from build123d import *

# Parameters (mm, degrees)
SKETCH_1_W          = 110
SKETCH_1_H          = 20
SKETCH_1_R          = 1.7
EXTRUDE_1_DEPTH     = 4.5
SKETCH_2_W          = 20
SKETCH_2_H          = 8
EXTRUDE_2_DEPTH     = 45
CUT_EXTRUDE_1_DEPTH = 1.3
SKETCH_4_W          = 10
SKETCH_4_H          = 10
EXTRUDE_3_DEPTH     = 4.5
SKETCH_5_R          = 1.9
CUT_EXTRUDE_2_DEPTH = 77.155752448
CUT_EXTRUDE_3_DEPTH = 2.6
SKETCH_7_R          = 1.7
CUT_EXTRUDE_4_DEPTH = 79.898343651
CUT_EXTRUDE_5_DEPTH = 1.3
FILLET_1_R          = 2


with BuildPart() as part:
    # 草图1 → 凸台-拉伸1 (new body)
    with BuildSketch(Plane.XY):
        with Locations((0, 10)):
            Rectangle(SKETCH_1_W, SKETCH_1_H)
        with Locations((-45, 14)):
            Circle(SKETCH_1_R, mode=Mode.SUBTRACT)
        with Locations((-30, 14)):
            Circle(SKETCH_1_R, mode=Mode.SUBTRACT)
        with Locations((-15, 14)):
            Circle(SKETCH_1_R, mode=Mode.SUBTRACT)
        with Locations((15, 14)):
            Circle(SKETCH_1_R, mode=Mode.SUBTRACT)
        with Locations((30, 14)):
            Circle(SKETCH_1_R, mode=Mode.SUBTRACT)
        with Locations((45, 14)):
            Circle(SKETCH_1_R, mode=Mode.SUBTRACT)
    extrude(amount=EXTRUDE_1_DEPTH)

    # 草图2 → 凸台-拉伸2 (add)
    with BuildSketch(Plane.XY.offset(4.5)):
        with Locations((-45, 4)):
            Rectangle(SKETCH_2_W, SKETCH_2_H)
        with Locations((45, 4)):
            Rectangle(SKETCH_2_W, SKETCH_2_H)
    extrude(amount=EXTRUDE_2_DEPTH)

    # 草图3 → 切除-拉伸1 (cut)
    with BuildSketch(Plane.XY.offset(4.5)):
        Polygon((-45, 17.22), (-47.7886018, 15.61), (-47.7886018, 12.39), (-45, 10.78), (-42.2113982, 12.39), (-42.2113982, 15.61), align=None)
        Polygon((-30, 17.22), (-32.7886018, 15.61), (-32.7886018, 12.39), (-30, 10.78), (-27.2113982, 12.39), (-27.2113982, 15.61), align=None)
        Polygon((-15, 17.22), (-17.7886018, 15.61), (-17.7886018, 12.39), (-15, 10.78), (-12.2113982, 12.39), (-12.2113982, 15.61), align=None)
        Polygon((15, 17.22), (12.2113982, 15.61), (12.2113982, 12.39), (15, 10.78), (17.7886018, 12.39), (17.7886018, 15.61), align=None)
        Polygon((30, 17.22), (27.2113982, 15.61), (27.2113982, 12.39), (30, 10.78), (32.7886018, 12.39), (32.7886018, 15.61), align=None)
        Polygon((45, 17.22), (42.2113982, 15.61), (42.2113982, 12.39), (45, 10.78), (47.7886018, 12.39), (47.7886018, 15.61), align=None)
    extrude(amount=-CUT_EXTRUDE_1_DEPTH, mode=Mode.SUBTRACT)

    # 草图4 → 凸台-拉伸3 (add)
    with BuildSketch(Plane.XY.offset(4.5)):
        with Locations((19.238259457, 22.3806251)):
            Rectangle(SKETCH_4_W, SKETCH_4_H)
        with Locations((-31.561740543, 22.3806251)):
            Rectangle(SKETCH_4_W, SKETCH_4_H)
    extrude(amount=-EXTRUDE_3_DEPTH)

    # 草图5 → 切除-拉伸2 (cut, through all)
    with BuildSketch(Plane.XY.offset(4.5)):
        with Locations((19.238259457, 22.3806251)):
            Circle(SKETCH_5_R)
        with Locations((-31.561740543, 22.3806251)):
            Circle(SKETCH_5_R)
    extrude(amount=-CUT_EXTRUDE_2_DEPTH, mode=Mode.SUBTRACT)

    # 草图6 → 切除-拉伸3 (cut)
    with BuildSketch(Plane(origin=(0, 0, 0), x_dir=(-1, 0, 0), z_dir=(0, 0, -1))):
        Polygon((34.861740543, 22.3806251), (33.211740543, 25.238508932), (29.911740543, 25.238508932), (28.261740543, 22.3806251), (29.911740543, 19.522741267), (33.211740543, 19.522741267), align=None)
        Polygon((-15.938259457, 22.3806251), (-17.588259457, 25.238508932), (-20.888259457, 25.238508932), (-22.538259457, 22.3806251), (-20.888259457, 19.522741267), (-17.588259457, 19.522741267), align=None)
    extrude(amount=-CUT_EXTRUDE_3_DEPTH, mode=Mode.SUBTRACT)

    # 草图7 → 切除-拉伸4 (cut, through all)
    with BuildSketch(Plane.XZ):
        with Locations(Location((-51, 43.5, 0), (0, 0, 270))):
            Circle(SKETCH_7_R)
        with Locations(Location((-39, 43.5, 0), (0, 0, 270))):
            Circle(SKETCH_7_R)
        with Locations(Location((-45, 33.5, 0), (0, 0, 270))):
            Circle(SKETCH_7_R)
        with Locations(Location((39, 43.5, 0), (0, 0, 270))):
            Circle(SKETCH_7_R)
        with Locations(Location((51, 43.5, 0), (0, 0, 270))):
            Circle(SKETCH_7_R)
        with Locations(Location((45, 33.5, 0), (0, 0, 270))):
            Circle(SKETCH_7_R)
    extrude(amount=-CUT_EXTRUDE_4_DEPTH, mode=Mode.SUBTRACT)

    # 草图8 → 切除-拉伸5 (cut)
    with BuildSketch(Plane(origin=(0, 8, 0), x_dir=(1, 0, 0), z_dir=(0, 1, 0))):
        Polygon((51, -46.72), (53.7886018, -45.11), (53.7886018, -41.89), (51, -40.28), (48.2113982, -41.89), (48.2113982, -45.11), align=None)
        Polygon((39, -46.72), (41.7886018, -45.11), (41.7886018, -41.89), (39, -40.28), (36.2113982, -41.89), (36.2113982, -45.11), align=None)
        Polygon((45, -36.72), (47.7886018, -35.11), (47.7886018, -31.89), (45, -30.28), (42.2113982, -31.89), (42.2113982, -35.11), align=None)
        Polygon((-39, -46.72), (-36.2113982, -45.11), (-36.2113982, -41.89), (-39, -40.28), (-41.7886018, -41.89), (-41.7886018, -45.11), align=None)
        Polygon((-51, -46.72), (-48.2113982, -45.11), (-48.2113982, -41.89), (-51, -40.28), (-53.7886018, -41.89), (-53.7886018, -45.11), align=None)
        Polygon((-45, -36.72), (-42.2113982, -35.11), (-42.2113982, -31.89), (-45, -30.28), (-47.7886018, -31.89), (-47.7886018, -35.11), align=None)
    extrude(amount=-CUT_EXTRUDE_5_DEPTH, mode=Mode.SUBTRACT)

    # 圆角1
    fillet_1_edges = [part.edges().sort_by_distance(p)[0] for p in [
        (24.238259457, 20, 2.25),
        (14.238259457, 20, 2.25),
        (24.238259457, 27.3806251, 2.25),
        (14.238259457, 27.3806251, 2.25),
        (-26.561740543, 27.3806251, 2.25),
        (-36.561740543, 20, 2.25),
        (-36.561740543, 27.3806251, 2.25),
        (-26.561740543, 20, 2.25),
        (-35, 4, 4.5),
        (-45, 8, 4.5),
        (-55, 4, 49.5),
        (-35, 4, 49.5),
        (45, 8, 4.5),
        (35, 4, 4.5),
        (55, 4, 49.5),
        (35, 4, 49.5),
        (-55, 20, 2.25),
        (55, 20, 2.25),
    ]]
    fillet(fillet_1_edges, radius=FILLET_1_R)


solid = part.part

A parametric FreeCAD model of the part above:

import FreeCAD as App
import Part
import Sketcher
from FreeCAD import Vector
Q = App.Units.Quantity


def edges_at(feature, points):
    """Names of the edges that pass closest to the given points."""
    edges = feature.Shape.Edges
    near = lambda p: min(range(len(edges)), key=lambda i: edges[i].distToShape(Part.Vertex(*p))[0])
    return sorted({f"Edge{near(p) + 1}" for p in points})

doc = App.newDocument("Part")
body = doc.addObject("PartDesign::Body", "Body")

# Sketch on XY plane
sketch1 = doc.addObject("Sketcher::SketchObject", "Sketch")
body.addObject(sketch1)
sketch1.AttachmentSupport = (doc.XY_Plane, [""])
sketch1.MapMode = "FlatFace"
sketch1.addGeometry(Part.LineSegment(Vector(-55, 20, 0), Vector(-55, 0, 0)), False)
sketch1.addGeometry(Part.LineSegment(Vector(-55, 0, 0), Vector(55, 0, 0)), False)
sketch1.addGeometry(Part.LineSegment(Vector(55, 0, 0), Vector(55, 20, 0)), False)
sketch1.addGeometry(Part.LineSegment(Vector(55, 20, 0), Vector(-55, 20, 0)), False)
sketch1.addGeometry(Part.Circle(Vector(-45, 14, 0), Vector(0, 0, 1), 1.7), False)
sketch1.addGeometry(Part.Circle(Vector(-30, 14, 0), Vector(0, 0, 1), 1.7), False)
sketch1.addGeometry(Part.Circle(Vector(-15, 14, 0), Vector(0, 0, 1), 1.7), False)
sketch1.addGeometry(Part.Circle(Vector(15, 14, 0), Vector(0, 0, 1), 1.7), False)
sketch1.addGeometry(Part.Circle(Vector(30, 14, 0), Vector(0, 0, 1), 1.7), False)
sketch1.addGeometry(Part.Circle(Vector(45, 14, 0), Vector(0, 0, 1), 1.7), False)
sketch1.addConstraint(Sketcher.Constraint("Coincident", 0, 2, 1, 1))
sketch1.addConstraint(Sketcher.Constraint("Coincident", 1, 2, 2, 1))
sketch1.addConstraint(Sketcher.Constraint("Coincident", 2, 2, 3, 1))
sketch1.addConstraint(Sketcher.Constraint("Coincident", 3, 2, 0, 1))
sketch1.addConstraint(Sketcher.Constraint("Vertical", 0))
sketch1.addConstraint(Sketcher.Constraint("Horizontal", 1))
sketch1.addConstraint(Sketcher.Constraint("Vertical", 2))
sketch1.addConstraint(Sketcher.Constraint("Horizontal", 3))
sketch1.addConstraint(Sketcher.Constraint("Equal", 4, 5))
sketch1.addConstraint(Sketcher.Constraint("Equal", 5, 6))
sketch1.addConstraint(Sketcher.Constraint("Equal", 6, 7))
sketch1.addConstraint(Sketcher.Constraint("Equal", 7, 8))
sketch1.addConstraint(Sketcher.Constraint("Equal", 8, 9))
sketch1.addConstraint(Sketcher.Constraint("Symmetric", 0, 2, 1, 2, -1, 1))
sketch1.addConstraint(Sketcher.Constraint("Symmetric", 6, 3, 7, 3, -2))
sketch1.addConstraint(Sketcher.Constraint("Symmetric", 5, 3, 8, 3, -2))
sketch1.addConstraint(Sketcher.Constraint("Symmetric", 4, 3, 9, 3, -2))
sketch1.addConstraint(Sketcher.Constraint("Horizontal", 4, 3, 5, 3))
sketch1.addConstraint(Sketcher.Constraint("Horizontal", 5, 3, 6, 3))
sketch1.addConstraint(Sketcher.Constraint("Diameter", 4, Q("3.4 mm")))
sketch1.addConstraint(Sketcher.Constraint("DistanceX", 1, 1, 1, 2, Q("110 mm")))
sketch1.addConstraint(Sketcher.Constraint("DistanceY", 0, 2, 0, 1, Q("20 mm")))
sketch1.addConstraint(Sketcher.Constraint("DistanceX", 4, 3, -1, 1, Q("45 mm")))
sketch1.addConstraint(Sketcher.Constraint("DistanceY", -1, 1, 4, 3, Q("14 mm")))
sketch1.addConstraint(Sketcher.Constraint("DistanceX", 5, 3, -1, 1, Q("30 mm")))
sketch1.addConstraint(Sketcher.Constraint("DistanceX", 6, 3, -1, 1, Q("15 mm")))
pad1 = doc.addObject("PartDesign::Pad", "Pad")
body.addObject(pad1)
pad1.Profile = sketch1
pad1.Length = 4.5

# Sketch on XY plane
sketch2 = doc.addObject("Sketcher::SketchObject", "Sketch001")
body.addObject(sketch2)
sketch2.AttachmentSupport = (doc.XY_Plane, [""])
sketch2.MapMode = "FlatFace"
sketch2.AttachmentOffset = App.Placement(Vector(0, 0, 4.5), App.Rotation())
sketch2.addGeometry(Part.LineSegment(Vector(-55, 8, 0), Vector(-55, 0, 0)), False)
sketch2.addGeometry(Part.LineSegment(Vector(-55, 0, 0), Vector(-35, 0, 0)), False)
sketch2.addGeometry(Part.LineSegment(Vector(-35, 0, 0), Vector(-35, 8, 0)), False)
sketch2.addGeometry(Part.LineSegment(Vector(-35, 8, 0), Vector(-55, 8, 0)), False)
sketch2.addGeometry(Part.LineSegment(Vector(35, 8, 0), Vector(35, 0, 0)), False)
sketch2.addGeometry(Part.LineSegment(Vector(35, 0, 0), Vector(55, 0, 0)), False)
sketch2.addGeometry(Part.LineSegment(Vector(55, 0, 0), Vector(55, 8, 0)), False)
sketch2.addGeometry(Part.LineSegment(Vector(55, 8, 0), Vector(35, 8, 0)), False)
sketch2.addConstraint(Sketcher.Constraint("Coincident", 0, 2, 1, 1))
sketch2.addConstraint(Sketcher.Constraint("Coincident", 1, 2, 2, 1))
sketch2.addConstraint(Sketcher.Constraint("Coincident", 2, 2, 3, 1))
sketch2.addConstraint(Sketcher.Constraint("Coincident", 3, 2, 0, 1))
sketch2.addConstraint(Sketcher.Constraint("Coincident", 4, 2, 5, 1))
sketch2.addConstraint(Sketcher.Constraint("Coincident", 5, 2, 6, 1))
sketch2.addConstraint(Sketcher.Constraint("Coincident", 6, 2, 7, 1))
sketch2.addConstraint(Sketcher.Constraint("Coincident", 7, 2, 4, 1))
sketch2.addConstraint(Sketcher.Constraint("Vertical", 0))
sketch2.addConstraint(Sketcher.Constraint("Horizontal", 1))
sketch2.addConstraint(Sketcher.Constraint("Vertical", 2))
sketch2.addConstraint(Sketcher.Constraint("Horizontal", 3))
sketch2.addConstraint(Sketcher.Constraint("Vertical", 4))
sketch2.addConstraint(Sketcher.Constraint("Horizontal", 5))
sketch2.addConstraint(Sketcher.Constraint("Vertical", 6))
sketch2.addConstraint(Sketcher.Constraint("Horizontal", 7))
sketch2.addConstraint(Sketcher.Constraint("Symmetric", 1, 2, 4, 2, -1, 1))
sketch2.addConstraint(Sketcher.Constraint("Symmetric", 0, 2, 5, 2, -2))
sketch2.addConstraint(Sketcher.Constraint("Horizontal", 3, 2, 6, 2))
sketch2.addConstraint(Sketcher.Constraint("DistanceX", 1, 1, 1, 2, Q("20 mm")))
sketch2.addConstraint(Sketcher.Constraint("DistanceY", 0, 2, 0, 1, Q("8 mm")))
sketch2.addConstraint(Sketcher.Constraint("DistanceX", 0, 2, -1, 1, Q("55 mm")))
pad2 = doc.addObject("PartDesign::Pad", "Pad001")
body.addObject(pad2)
pad2.Profile = sketch2
pad2.Length = 45

# Sketch on XY plane
sketch3 = doc.addObject("Sketcher::SketchObject", "Sketch002")
body.addObject(sketch3)
sketch3.AttachmentSupport = (doc.XY_Plane, [""])
sketch3.MapMode = "FlatFace"
sketch3.AttachmentOffset = App.Placement(Vector(0, 0, 4.5), App.Rotation())
sketch3.addGeometry(Part.LineSegment(Vector(-45, 17.22, 0), Vector(-47.788602, 15.61, 0)), False)
sketch3.addGeometry(Part.LineSegment(Vector(-47.788602, 15.61, 0), Vector(-47.788602, 12.39, 0)), False)
sketch3.addGeometry(Part.LineSegment(Vector(-47.788602, 12.39, 0), Vector(-45, 10.78, 0)), False)
sketch3.addGeometry(Part.LineSegment(Vector(-45, 10.78, 0), Vector(-42.211398, 12.39, 0)), False)
sketch3.addGeometry(Part.LineSegment(Vector(-42.211398, 12.39, 0), Vector(-42.211398, 15.61, 0)), False)
sketch3.addGeometry(Part.LineSegment(Vector(-42.211398, 15.61, 0), Vector(-45, 17.22, 0)), False)
sketch3.addGeometry(Part.LineSegment(Vector(-30, 17.22, 0), Vector(-32.788602, 15.61, 0)), False)
sketch3.addGeometry(Part.LineSegment(Vector(-32.788602, 15.61, 0), Vector(-32.788602, 12.39, 0)), False)
sketch3.addGeometry(Part.LineSegment(Vector(-32.788602, 12.39, 0), Vector(-30, 10.78, 0)), False)
sketch3.addGeometry(Part.LineSegment(Vector(-30, 10.78, 0), Vector(-27.211398, 12.39, 0)), False)
sketch3.addGeometry(Part.LineSegment(Vector(-27.211398, 12.39, 0), Vector(-27.211398, 15.61, 0)), False)
sketch3.addGeometry(Part.LineSegment(Vector(-27.211398, 15.61, 0), Vector(-30, 17.22, 0)), False)
sketch3.addGeometry(Part.LineSegment(Vector(-15, 17.22, 0), Vector(-17.788602, 15.61, 0)), False)
sketch3.addGeometry(Part.LineSegment(Vector(-17.788602, 15.61, 0), Vector(-17.788602, 12.39, 0)), False)
sketch3.addGeometry(Part.LineSegment(Vector(-17.788602, 12.39, 0), Vector(-15, 10.78, 0)), False)
sketch3.addGeometry(Part.LineSegment(Vector(-15, 10.78, 0), Vector(-12.211398, 12.39, 0)), False)
sketch3.addGeometry(Part.LineSegment(Vector(-12.211398, 12.39, 0), Vector(-12.211398, 15.61, 0)), False)
sketch3.addGeometry(Part.LineSegment(Vector(-12.211398, 15.61, 0), Vector(-15, 17.22, 0)), False)
sketch3.addGeometry(Part.LineSegment(Vector(15, 17.22, 0), Vector(12.211398, 15.61, 0)), False)
sketch3.addGeometry(Part.LineSegment(Vector(12.211398, 15.61, 0), Vector(12.211398, 12.39, 0)), False)
sketch3.addGeometry(Part.LineSegment(Vector(12.211398, 12.39, 0), Vector(15, 10.78, 0)), False)
sketch3.addGeometry(Part.LineSegment(Vector(15, 10.78, 0), Vector(17.788602, 12.39, 0)), False)
sketch3.addGeometry(Part.LineSegment(Vector(17.788602, 12.39, 0), Vector(17.788602, 15.61, 0)), False)
sketch3.addGeometry(Part.LineSegment(Vector(17.788602, 15.61, 0), Vector(15, 17.22, 0)), False)
sketch3.addGeometry(Part.LineSegment(Vector(30, 17.22, 0), Vector(27.211398, 15.61, 0)), False)
sketch3.addGeometry(Part.LineSegment(Vector(27.211398, 15.61, 0), Vector(27.211398, 12.39, 0)), False)
sketch3.addGeometry(Part.LineSegment(Vector(27.211398, 12.39, 0), Vector(30, 10.78, 0)), False)
sketch3.addGeometry(Part.LineSegment(Vector(30, 10.78, 0), Vector(32.788602, 12.39, 0)), False)
sketch3.addGeometry(Part.LineSegment(Vector(32.788602, 12.39, 0), Vector(32.788602, 15.61, 0)), False)
sketch3.addGeometry(Part.LineSegment(Vector(32.788602, 15.61, 0), Vector(30, 17.22, 0)), False)
sketch3.addGeometry(Part.LineSegment(Vector(45, 17.22, 0), Vector(42.211398, 15.61, 0)), False)
sketch3.addGeometry(Part.LineSegment(Vector(42.211398, 15.61, 0), Vector(42.211398, 12.39, 0)), False)
sketch3.addGeometry(Part.LineSegment(Vector(42.211398, 12.39, 0), Vector(45, 10.78, 0)), False)
sketch3.addGeometry(Part.LineSegment(Vector(45, 10.78, 0), Vector(47.788602, 12.39, 0)), False)
sketch3.addGeometry(Part.LineSegment(Vector(47.788602, 12.39, 0), Vector(47.788602, 15.61, 0)), False)
sketch3.addGeometry(Part.LineSegment(Vector(47.788602, 15.61, 0), Vector(45, 17.22, 0)), False)
sketch3.addConstraint(Sketcher.Constraint("Coincident", 0, 2, 1, 1))
sketch3.addConstraint(Sketcher.Constraint("Coincident", 1, 2, 2, 1))
sketch3.addConstraint(Sketcher.Constraint("Coincident", 2, 2, 3, 1))
sketch3.addConstraint(Sketcher.Constraint("Coincident", 3, 2, 4, 1))
sketch3.addConstraint(Sketcher.Constraint("Coincident", 4, 2, 5, 1))
sketch3.addConstraint(Sketcher.Constraint("Coincident", 5, 2, 0, 1))
sketch3.addConstraint(Sketcher.Constraint("Coincident", 6, 2, 7, 1))
sketch3.addConstraint(Sketcher.Constraint("Coincident", 7, 2, 8, 1))
sketch3.addConstraint(Sketcher.Constraint("Coincident", 8, 2, 9, 1))
sketch3.addConstraint(Sketcher.Constraint("Coincident", 9, 2, 10, 1))
sketch3.addConstraint(Sketcher.Constraint("Coincident", 10, 2, 11, 1))
sketch3.addConstraint(Sketcher.Constraint("Coincident", 11, 2, 6, 1))
sketch3.addConstraint(Sketcher.Constraint("Coincident", 12, 2, 13, 1))
sketch3.addConstraint(Sketcher.Constraint("Coincident", 13, 2, 14, 1))
sketch3.addConstraint(Sketcher.Constraint("Coincident", 14, 2, 15, 1))
sketch3.addConstraint(Sketcher.Constraint("Coincident", 15, 2, 16, 1))
sketch3.addConstraint(Sketcher.Constraint("Coincident", 16, 2, 17, 1))
sketch3.addConstraint(Sketcher.Constraint("Coincident", 17, 2, 12, 1))
sketch3.addConstraint(Sketcher.Constraint("Coincident", 18, 2, 19, 1))
sketch3.addConstraint(Sketcher.Constraint("Coincident", 19, 2, 20, 1))
sketch3.addConstraint(Sketcher.Constraint("Coincident", 20, 2, 21, 1))
sketch3.addConstraint(Sketcher.Constraint("Coincident", 21, 2, 22, 1))
sketch3.addConstraint(Sketcher.Constraint("Coincident", 22, 2, 23, 1))
sketch3.addConstraint(Sketcher.Constraint("Coincident", 23, 2, 18, 1))
sketch3.addConstraint(Sketcher.Constraint("Coincident", 24, 2, 25, 1))
sketch3.addConstraint(Sketcher.Constraint("Coincident", 25, 2, 26, 1))
sketch3.addConstraint(Sketcher.Constraint("Coincident", 26, 2, 27, 1))
sketch3.addConstraint(Sketcher.Constraint("Coincident", 27, 2, 28, 1))
sketch3.addConstraint(Sketcher.Constraint("Coincident", 28, 2, 29, 1))
sketch3.addConstraint(Sketcher.Constraint("Coincident", 29, 2, 24, 1))
sketch3.addConstraint(Sketcher.Constraint("Coincident", 30, 2, 31, 1))
sketch3.addConstraint(Sketcher.Constraint("Coincident", 31, 2, 32, 1))
sketch3.addConstraint(Sketcher.Constraint("Coincident", 32, 2, 33, 1))
sketch3.addConstraint(Sketcher.Constraint("Coincident", 33, 2, 34, 1))
sketch3.addConstraint(Sketcher.Constraint("Coincident", 34, 2, 35, 1))
sketch3.addConstraint(Sketcher.Constraint("Coincident", 35, 2, 30, 1))
sketch3.addConstraint(Sketcher.Constraint("Vertical", 1))
sketch3.addConstraint(Sketcher.Constraint("Vertical", 4))
sketch3.addConstraint(Sketcher.Constraint("Vertical", 7))
sketch3.addConstraint(Sketcher.Constraint("Vertical", 10))
sketch3.addConstraint(Sketcher.Constraint("Vertical", 13))
sketch3.addConstraint(Sketcher.Constraint("Vertical", 16))
sketch3.addConstraint(Sketcher.Constraint("Vertical", 19))
sketch3.addConstraint(Sketcher.Constraint("Vertical", 22))
sketch3.addConstraint(Sketcher.Constraint("Vertical", 25))
sketch3.addConstraint(Sketcher.Constraint("Vertical", 28))
sketch3.addConstraint(Sketcher.Constraint("Vertical", 31))
sketch3.addConstraint(Sketcher.Constraint("Vertical", 34))
sketch3.addConstraint(Sketcher.Constraint("Symmetric", 16, 2, 18, 2, -2))
sketch3.addConstraint(Sketcher.Constraint("Symmetric", 14, 2, 20, 2, -2))
sketch3.addConstraint(Sketcher.Constraint("Symmetric", 13, 2, 21, 2, -2))
sketch3.addConstraint(Sketcher.Constraint("Symmetric", 17, 2, 23, 2, -2))
sketch3.addConstraint(Sketcher.Constraint("Symmetric", 10, 2, 24, 2, -2))
sketch3.addConstraint(Sketcher.Constraint("Symmetric", 8, 2, 26, 2, -2))
sketch3.addConstraint(Sketcher.Constraint("Symmetric", 7, 2, 27, 2, -2))
sketch3.addConstraint(Sketcher.Constraint("Symmetric", 11, 2, 29, 2, -2))
sketch3.addConstraint(Sketcher.Constraint("Symmetric", 4, 2, 30, 2, -2))
sketch3.addConstraint(Sketcher.Constraint("Symmetric", 2, 2, 32, 2, -2))
sketch3.addConstraint(Sketcher.Constraint("Symmetric", 1, 2, 33, 2, -2))
sketch3.addConstraint(Sketcher.Constraint("Symmetric", 5, 2, 35, 2, -2))
sketch3.addConstraint(Sketcher.Constraint("Parallel", 0, 3))
sketch3.addConstraint(Sketcher.Constraint("Parallel", 2, 5))
sketch3.addConstraint(Sketcher.Constraint("Parallel", 3, 6))
sketch3.addConstraint(Sketcher.Constraint("Parallel", 5, 8))
sketch3.addConstraint(Sketcher.Constraint("Parallel", 6, 9))
sketch3.addConstraint(Sketcher.Constraint("Parallel", 8, 11))
sketch3.addConstraint(Sketcher.Constraint("Parallel", 9, 12))
sketch3.addConstraint(Sketcher.Constraint("Parallel", 11, 14))
sketch3.addConstraint(Sketcher.Constraint("Parallel", 12, 15))
sketch3.addConstraint(Sketcher.Constraint("Parallel", 14, 17))
sketch3.addConstraint(Sketcher.Constraint("Parallel", 15, 18))
sketch3.addConstraint(Sketcher.Constraint("Parallel", 17, 20))
sketch3.addConstraint(Sketcher.Constraint("Parallel", 20, 23))
sketch3.addConstraint(Sketcher.Constraint("Parallel", 23, 26))
sketch3.addConstraint(Sketcher.Constraint("Parallel", 26, 29))
sketch3.addConstraint(Sketcher.Constraint("Parallel", 29, 32))
sketch3.addConstraint(Sketcher.Constraint("Parallel", 32, 35))
sketch3.addConstraint(Sketcher.Constraint("Horizontal", 1, 2, 3, 2))
sketch3.addConstraint(Sketcher.Constraint("Horizontal", 0, 2, 4, 2))
sketch3.addConstraint(Sketcher.Constraint("Horizontal", 4, 2, 6, 2))
sketch3.addConstraint(Sketcher.Constraint("Horizontal", 3, 2, 7, 2))
sketch3.addConstraint(Sketcher.Constraint("Horizontal", 2, 2, 8, 2))
sketch3.addConstraint(Sketcher.Constraint("Horizontal", 7, 2, 9, 2))
sketch3.addConstraint(Sketcher.Constraint("Horizontal", 6, 2, 10, 2))
sketch3.addConstraint(Sketcher.Constraint("Horizontal", 10, 2, 12, 2))
sketch3.addConstraint(Sketcher.Constraint("Horizontal", 9, 2, 13, 2))
sketch3.addConstraint(Sketcher.Constraint("Horizontal", 8, 2, 14, 2))
sketch3.addConstraint(Sketcher.Constraint("Horizontal", 13, 2, 15, 2))
sketch3.addConstraint(Sketcher.Constraint("Horizontal", 12, 2, 16, 2))
sketch3.addConstraint(Sketcher.Constraint("Angle", 0, Q("-150 deg")))
sketch3.addConstraint(Sketcher.Constraint("DistanceX", 2, 2, -1, 1, Q("45 mm")))
sketch3.addConstraint(Sketcher.Constraint("DistanceX", 8, 2, -1, 1, Q("30 mm")))
sketch3.addConstraint(Sketcher.Constraint("DistanceX", 14, 2, -1, 1, Q("15 mm")))
sketch3.addConstraint(Sketcher.Constraint("DistanceY", 1, 2, 1, 1, Q("3.22 mm")))
sketch3.addConstraint(Sketcher.Constraint("Distance", 0, Q("3.22 mm")))
sketch3.addConstraint(Sketcher.Constraint("DistanceY", -1, 1, 0, 2, Q("15.61 mm")))
pocket1 = doc.addObject("PartDesign::Pocket", "Pocket")
body.addObject(pocket1)
pocket1.Profile = sketch3
pocket1.Length = 1.3

# Sketch on XY plane
sketch4 = doc.addObject("Sketcher::SketchObject", "Sketch003")
body.addObject(sketch4)
sketch4.AttachmentSupport = (doc.XY_Plane, [""])
sketch4.MapMode = "FlatFace"
sketch4.AttachmentOffset = App.Placement(Vector(0, 0, 4.5), App.Rotation())
sketch4.addGeometry(Part.LineSegment(Vector(14, 27, 0), Vector(14, 17, 0)), False)
sketch4.addGeometry(Part.LineSegment(Vector(14, 17, 0), Vector(24, 17, 0)), False)
sketch4.addGeometry(Part.LineSegment(Vector(24, 17, 0), Vector(24, 27, 0)), False)
sketch4.addGeometry(Part.LineSegment(Vector(24, 27, 0), Vector(14, 27, 0)), False)
sketch4.addGeometry(Part.LineSegment(Vector(-37, 27, 0), Vector(-37, 17, 0)), False)
sketch4.addGeometry(Part.LineSegment(Vector(-37, 17, 0), Vector(-27, 17, 0)), False)
sketch4.addGeometry(Part.LineSegment(Vector(-27, 17, 0), Vector(-27, 27, 0)), False)
sketch4.addGeometry(Part.LineSegment(Vector(-27, 27, 0), Vector(-37, 27, 0)), False)
sketch4.addConstraint(Sketcher.Constraint("Coincident", 0, 2, 1, 1))
sketch4.addConstraint(Sketcher.Constraint("Coincident", 1, 2, 2, 1))
sketch4.addConstraint(Sketcher.Constraint("Coincident", 2, 2, 3, 1))
sketch4.addConstraint(Sketcher.Constraint("Coincident", 3, 2, 0, 1))
sketch4.addConstraint(Sketcher.Constraint("Coincident", 4, 2, 5, 1))
sketch4.addConstraint(Sketcher.Constraint("Coincident", 5, 2, 6, 1))
sketch4.addConstraint(Sketcher.Constraint("Coincident", 6, 2, 7, 1))
sketch4.addConstraint(Sketcher.Constraint("Coincident", 7, 2, 4, 1))
sketch4.addConstraint(Sketcher.Constraint("Vertical", 0))
sketch4.addConstraint(Sketcher.Constraint("Horizontal", 1))
sketch4.addConstraint(Sketcher.Constraint("Vertical", 2))
sketch4.addConstraint(Sketcher.Constraint("Horizontal", 3))
sketch4.addConstraint(Sketcher.Constraint("Vertical", 4))
sketch4.addConstraint(Sketcher.Constraint("Horizontal", 5))
sketch4.addConstraint(Sketcher.Constraint("Vertical", 6))
sketch4.addConstraint(Sketcher.Constraint("Horizontal", 7))
sketch4.addConstraint(Sketcher.Constraint("Horizontal", 1, 2, 4, 2))
sketch4.addConstraint(Sketcher.Constraint("Horizontal", 3, 2, 6, 2))
sketch4.addConstraint(Sketcher.Constraint("Equal", 3, 5))
sketch4.addConstraint(Sketcher.Constraint("Equal", 7, 0))
sketch4.addConstraint(Sketcher.Constraint("DistanceX", 1, 1, 1, 2, Q("10 mm")))
sketch4.addConstraint(Sketcher.Constraint("DistanceX", 4, 2, 0, 2, Q("50.8 mm")))
sketch4.addConstraint(Sketcher.Constraint("DistanceX", -1, 1, 0, 2, Q("14.238259 mm")))
sketch4.addConstraint(Sketcher.Constraint("DistanceY", -1, 1, 0, 2, Q("17.380625 mm")))
pad3 = doc.addObject("PartDesign::Pad", "Pad002")
body.addObject(pad3)
pad3.Profile = sketch4
pad3.Length = 4.5
pad3.Reversed = True

# Sketch on XY plane
sketch5 = doc.addObject("Sketcher::SketchObject", "Sketch004")
body.addObject(sketch5)
sketch5.AttachmentSupport = (doc.XY_Plane, [""])
sketch5.MapMode = "FlatFace"
sketch5.AttachmentOffset = App.Placement(Vector(0, 0, 4.5), App.Rotation())
sketch5.addGeometry(Part.Circle(Vector(19.2, 22.4, 0), Vector(0, 0, 1), 1.9), False)
sketch5.addGeometry(Part.Circle(Vector(-31.6, 22.4, 0), Vector(0, 0, 1), 1.9), False)
sketch5.addConstraint(Sketcher.Constraint("Equal", 0, 1))
sketch5.addConstraint(Sketcher.Constraint("Horizontal", 0, 3, 1, 3))
sketch5.addConstraint(Sketcher.Constraint("Diameter", 0, Q("3.8 mm")))
sketch5.addConstraint(Sketcher.Constraint("DistanceX", 1, 3, 0, 3, Q("50.8 mm")))
sketch5.addConstraint(Sketcher.Constraint("DistanceX", -1, 1, 0, 3, Q("19.238259 mm")))
sketch5.addConstraint(Sketcher.Constraint("DistanceY", -1, 1, 0, 3, Q("22.380625 mm")))
pocket2 = doc.addObject("PartDesign::Pocket", "Pocket001")
body.addObject(pocket2)
pocket2.Profile = sketch5
pocket2.Type = "ThroughAll"

# Sketch on XY plane
sketch6 = doc.addObject("Sketcher::SketchObject", "Sketch005")
body.addObject(sketch6)
sketch6.AttachmentSupport = (doc.XY_Plane, [""])
sketch6.MapMode = "FlatFace"
sketch6.addGeometry(Part.LineSegment(Vector(-34.9, 22.4, 0), Vector(-33.2, 25.2, 0)), False)
sketch6.addGeometry(Part.LineSegment(Vector(-33.2, 25.2, 0), Vector(-29.9, 25.2, 0)), False)
sketch6.addGeometry(Part.LineSegment(Vector(-29.9, 25.2, 0), Vector(-28.3, 22.4, 0)), False)
sketch6.addGeometry(Part.LineSegment(Vector(-28.3, 22.4, 0), Vector(-29.9, 19.5, 0)), False)
sketch6.addGeometry(Part.LineSegment(Vector(-29.9, 19.5, 0), Vector(-33.2, 19.5, 0)), False)
sketch6.addGeometry(Part.LineSegment(Vector(-33.2, 19.5, 0), Vector(-34.9, 22.4, 0)), False)
sketch6.addGeometry(Part.LineSegment(Vector(15.9, 22.4, 0), Vector(17.6, 25.2, 0)), False)
sketch6.addGeometry(Part.LineSegment(Vector(17.6, 25.2, 0), Vector(20.9, 25.2, 0)), False)
sketch6.addGeometry(Part.LineSegment(Vector(20.9, 25.2, 0), Vector(22.5, 22.4, 0)), False)
sketch6.addGeometry(Part.LineSegment(Vector(22.5, 22.4, 0), Vector(20.9, 19.5, 0)), False)
sketch6.addGeometry(Part.LineSegment(Vector(20.9, 19.5, 0), Vector(17.6, 19.5, 0)), False)
sketch6.addGeometry(Part.LineSegment(Vector(17.6, 19.5, 0), Vector(15.9, 22.4, 0)), False)
sketch6.addConstraint(Sketcher.Constraint("Coincident", 0, 2, 1, 1))
sketch6.addConstraint(Sketcher.Constraint("Coincident", 1, 2, 2, 1))
sketch6.addConstraint(Sketcher.Constraint("Coincident", 2, 2, 3, 1))
sketch6.addConstraint(Sketcher.Constraint("Coincident", 3, 2, 4, 1))
sketch6.addConstraint(Sketcher.Constraint("Coincident", 4, 2, 5, 1))
sketch6.addConstraint(Sketcher.Constraint("Coincident", 5, 2, 0, 1))
sketch6.addConstraint(Sketcher.Constraint("Coincident", 6, 2, 7, 1))
sketch6.addConstraint(Sketcher.Constraint("Coincident", 7, 2, 8, 1))
sketch6.addConstraint(Sketcher.Constraint("Coincident", 8, 2, 9, 1))
sketch6.addConstraint(Sketcher.Constraint("Coincident", 9, 2, 10, 1))
sketch6.addConstraint(Sketcher.Constraint("Coincident", 10, 2, 11, 1))
sketch6.addConstraint(Sketcher.Constraint("Coincident", 11, 2, 6, 1))
sketch6.addConstraint(Sketcher.Constraint("Horizontal", 1))
sketch6.addConstraint(Sketcher.Constraint("Horizontal", 4))
sketch6.addConstraint(Sketcher.Constraint("Horizontal", 7))
sketch6.addConstraint(Sketcher.Constraint("Horizontal", 10))
sketch6.addConstraint(Sketcher.Constraint("Parallel", 0, 3))
sketch6.addConstraint(Sketcher.Constraint("Parallel", 2, 5))
sketch6.addConstraint(Sketcher.Constraint("Parallel", 3, 6))
sketch6.addConstraint(Sketcher.Constraint("Parallel", 5, 8))
sketch6.addConstraint(Sketcher.Constraint("Parallel", 6, 9))
sketch6.addConstraint(Sketcher.Constraint("Parallel", 8, 11))
sketch6.addConstraint(Sketcher.Constraint("Horizontal", 2, 2, 5, 2))
sketch6.addConstraint(Sketcher.Constraint("Horizontal", 1, 2, 6, 2))
sketch6.addConstraint(Sketcher.Constraint("Horizontal", 5, 2, 8, 2))
sketch6.addConstraint(Sketcher.Constraint("Horizontal", 4, 2, 9, 2))
sketch6.addConstraint(Sketcher.Constraint("Horizontal", 8, 2, 11, 2))
sketch6.addConstraint(Sketcher.Constraint("Vertical", 1, 2, 3, 2))
sketch6.addConstraint(Sketcher.Constraint("Vertical", 0, 2, 4, 2))
sketch6.addConstraint(Sketcher.Constraint("Equal", 4, 7))
sketch6.addConstraint(Sketcher.Constraint("Angle", 0, Q("60 deg")))
sketch6.addConstraint(Sketcher.Constraint("DistanceX", 1, 1, 1, 2, Q("3.3 mm")))
sketch6.addConstraint(Sketcher.Constraint("Distance", 0, Q("3.3 mm")))
sketch6.addConstraint(Sketcher.Constraint("DistanceX", 1, 2, 6, 2, Q("47.5 mm")))
sketch6.addConstraint(Sketcher.Constraint("DistanceX", 0, 2, -1, 1, Q("33.211741 mm")))
sketch6.addConstraint(Sketcher.Constraint("DistanceY", -1, 1, 0, 2, Q("25.238509 mm")))
pocket3 = doc.addObject("PartDesign::Pocket", "Pocket002")
body.addObject(pocket3)
pocket3.Profile = sketch6
pocket3.Length = 2.6
pocket3.Reversed = True

# Sketch on XZ plane
sketch7 = doc.addObject("Sketcher::SketchObject", "Sketch006")
body.addObject(sketch7)
sketch7.AttachmentSupport = (doc.XZ_Plane, [""])
sketch7.MapMode = "FlatFace"
sketch7.addGeometry(Part.Circle(Vector(-51, 43.5, 0), Vector(0, 0, 1), 1.7), False)
sketch7.addGeometry(Part.Circle(Vector(-39, 43.5, 0), Vector(0, 0, 1), 1.7), False)
sketch7.addGeometry(Part.Circle(Vector(-45, 33.5, 0), Vector(0, 0, 1), 1.7), False)
sketch7.addGeometry(Part.Circle(Vector(39, 43.5, 0), Vector(0, 0, 1), 1.7), False)
sketch7.addGeometry(Part.Circle(Vector(51, 43.5, 0), Vector(0, 0, 1), 1.7), False)
sketch7.addGeometry(Part.Circle(Vector(45, 33.5, 0), Vector(0, 0, 1), 1.7), False)
sketch7.addConstraint(Sketcher.Constraint("Equal", 0, 1))
sketch7.addConstraint(Sketcher.Constraint("Equal", 1, 2))
sketch7.addConstraint(Sketcher.Constraint("Equal", 2, 3))
sketch7.addConstraint(Sketcher.Constraint("Equal", 3, 4))
sketch7.addConstraint(Sketcher.Constraint("Equal", 4, 5))
sketch7.addConstraint(Sketcher.Constraint("Symmetric", 1, 3, 3, 3, -2))
sketch7.addConstraint(Sketcher.Constraint("Symmetric", 0, 3, 4, 3, -2))
sketch7.addConstraint(Sketcher.Constraint("Symmetric", 2, 3, 5, 3, -2))
sketch7.addConstraint(Sketcher.Constraint("Horizontal", 0, 3, 1, 3))
sketch7.addConstraint(Sketcher.Constraint("Diameter", 0, Q("3.4 mm")))
sketch7.addConstraint(Sketcher.Constraint("DistanceX", 0, 3, -1, 1, Q("51 mm")))
sketch7.addConstraint(Sketcher.Constraint("DistanceX", 1, 3, -1, 1, Q("39 mm")))
sketch7.addConstraint(Sketcher.Constraint("DistanceX", 2, 3, -1, 1, Q("45 mm")))
sketch7.addConstraint(Sketcher.Constraint("DistanceY", 2, 3, 0, 3, Q("10 mm")))
sketch7.addConstraint(Sketcher.Constraint("DistanceY", -1, 1, 0, 3, Q("43.5 mm")))
pocket4 = doc.addObject("PartDesign::Pocket", "Pocket003")
body.addObject(pocket4)
pocket4.Profile = sketch7
pocket4.Type = "ThroughAll"

# Sketch on XZ plane
sketch8 = doc.addObject("Sketcher::SketchObject", "Sketch007")
body.addObject(sketch8)
sketch8.AttachmentSupport = (doc.XZ_Plane, [""])
sketch8.MapMode = "FlatFace"
sketch8.AttachmentOffset = App.Placement(Vector(0, 0, -8), App.Rotation())
sketch8.addGeometry(Part.LineSegment(Vector(51, 46.7, 0), Vector(53.8, 45.1, 0)), False)
sketch8.addGeometry(Part.LineSegment(Vector(53.8, 45.1, 0), Vector(53.8, 41.9, 0)), False)
sketch8.addGeometry(Part.LineSegment(Vector(53.8, 41.9, 0), Vector(51, 40.3, 0)), False)
sketch8.addGeometry(Part.LineSegment(Vector(51, 40.3, 0), Vector(48.2, 41.9, 0)), False)
sketch8.addGeometry(Part.LineSegment(Vector(48.2, 41.9, 0), Vector(48.2, 45.1, 0)), False)
sketch8.addGeometry(Part.LineSegment(Vector(48.2, 45.1, 0), Vector(51, 46.7, 0)), False)
sketch8.addGeometry(Part.LineSegment(Vector(39, 46.7, 0), Vector(41.8, 45.1, 0)), False)
sketch8.addGeometry(Part.LineSegment(Vector(41.8, 45.1, 0), Vector(41.8, 41.9, 0)), False)
sketch8.addGeometry(Part.LineSegment(Vector(41.8, 41.9, 0), Vector(39, 40.3, 0)), False)
sketch8.addGeometry(Part.LineSegment(Vector(39, 40.3, 0), Vector(36.2, 41.9, 0)), False)
sketch8.addGeometry(Part.LineSegment(Vector(36.2, 41.9, 0), Vector(36.2, 45.1, 0)), False)
sketch8.addGeometry(Part.LineSegment(Vector(36.2, 45.1, 0), Vector(39, 46.7, 0)), False)
sketch8.addGeometry(Part.LineSegment(Vector(45, 36.7, 0), Vector(47.8, 35.1, 0)), False)
sketch8.addGeometry(Part.LineSegment(Vector(47.8, 35.1, 0), Vector(47.8, 31.9, 0)), False)
sketch8.addGeometry(Part.LineSegment(Vector(47.8, 31.9, 0), Vector(45, 30.3, 0)), False)
sketch8.addGeometry(Part.LineSegment(Vector(45, 30.3, 0), Vector(42.2, 31.9, 0)), False)
sketch8.addGeometry(Part.LineSegment(Vector(42.2, 31.9, 0), Vector(42.2, 35.1, 0)), False)
sketch8.addGeometry(Part.LineSegment(Vector(42.2, 35.1, 0), Vector(45, 36.7, 0)), False)
sketch8.addGeometry(Part.LineSegment(Vector(-39, 46.7, 0), Vector(-36.2, 45.1, 0)), False)
sketch8.addGeometry(Part.LineSegment(Vector(-36.2, 45.1, 0), Vector(-36.2, 41.9, 0)), False)
sketch8.addGeometry(Part.LineSegment(Vector(-36.2, 41.9, 0), Vector(-39, 40.3, 0)), False)
sketch8.addGeometry(Part.LineSegment(Vector(-39, 40.3, 0), Vector(-41.8, 41.9, 0)), False)
sketch8.addGeometry(Part.LineSegment(Vector(-41.8, 41.9, 0), Vector(-41.8, 45.1, 0)), False)
sketch8.addGeometry(Part.LineSegment(Vector(-41.8, 45.1, 0), Vector(-39, 46.7, 0)), False)
sketch8.addGeometry(Part.LineSegment(Vector(-51, 46.7, 0), Vector(-48.2, 45.1, 0)), False)
sketch8.addGeometry(Part.LineSegment(Vector(-48.2, 45.1, 0), Vector(-48.2, 41.9, 0)), False)
sketch8.addGeometry(Part.LineSegment(Vector(-48.2, 41.9, 0), Vector(-51, 40.3, 0)), False)
sketch8.addGeometry(Part.LineSegment(Vector(-51, 40.3, 0), Vector(-53.8, 41.9, 0)), False)
sketch8.addGeometry(Part.LineSegment(Vector(-53.8, 41.9, 0), Vector(-53.8, 45.1, 0)), False)
sketch8.addGeometry(Part.LineSegment(Vector(-53.8, 45.1, 0), Vector(-51, 46.7, 0)), False)
sketch8.addGeometry(Part.LineSegment(Vector(-45, 36.7, 0), Vector(-42.2, 35.1, 0)), False)
sketch8.addGeometry(Part.LineSegment(Vector(-42.2, 35.1, 0), Vector(-42.2, 31.9, 0)), False)
sketch8.addGeometry(Part.LineSegment(Vector(-42.2, 31.9, 0), Vector(-45, 30.3, 0)), False)
sketch8.addGeometry(Part.LineSegment(Vector(-45, 30.3, 0), Vector(-47.8, 31.9, 0)), False)
sketch8.addGeometry(Part.LineSegment(Vector(-47.8, 31.9, 0), Vector(-47.8, 35.1, 0)), False)
sketch8.addGeometry(Part.LineSegment(Vector(-47.8, 35.1, 0), Vector(-45, 36.7, 0)), False)
sketch8.addConstraint(Sketcher.Constraint("Coincident", 0, 2, 1, 1))
sketch8.addConstraint(Sketcher.Constraint("Coincident", 1, 2, 2, 1))
sketch8.addConstraint(Sketcher.Constraint("Coincident", 2, 2, 3, 1))
sketch8.addConstraint(Sketcher.Constraint("Coincident", 3, 2, 4, 1))
sketch8.addConstraint(Sketcher.Constraint("Coincident", 4, 2, 5, 1))
sketch8.addConstraint(Sketcher.Constraint("Coincident", 5, 2, 0, 1))
sketch8.addConstraint(Sketcher.Constraint("Coincident", 6, 2, 7, 1))
sketch8.addConstraint(Sketcher.Constraint("Coincident", 7, 2, 8, 1))
sketch8.addConstraint(Sketcher.Constraint("Coincident", 8, 2, 9, 1))
sketch8.addConstraint(Sketcher.Constraint("Coincident", 9, 2, 10, 1))
sketch8.addConstraint(Sketcher.Constraint("Coincident", 10, 2, 11, 1))
sketch8.addConstraint(Sketcher.Constraint("Coincident", 11, 2, 6, 1))
sketch8.addConstraint(Sketcher.Constraint("Coincident", 12, 2, 13, 1))
sketch8.addConstraint(Sketcher.Constraint("Coincident", 13, 2, 14, 1))
sketch8.addConstraint(Sketcher.Constraint("Coincident", 14, 2, 15, 1))
sketch8.addConstraint(Sketcher.Constraint("Coincident", 15, 2, 16, 1))
sketch8.addConstraint(Sketcher.Constraint("Coincident", 16, 2, 17, 1))
sketch8.addConstraint(Sketcher.Constraint("Coincident", 17, 2, 12, 1))
sketch8.addConstraint(Sketcher.Constraint("Coincident", 18, 2, 19, 1))
sketch8.addConstraint(Sketcher.Constraint("Coincident", 19, 2, 20, 1))
sketch8.addConstraint(Sketcher.Constraint("Coincident", 20, 2, 21, 1))
sketch8.addConstraint(Sketcher.Constraint("Coincident", 21, 2, 22, 1))
sketch8.addConstraint(Sketcher.Constraint("Coincident", 22, 2, 23, 1))
sketch8.addConstraint(Sketcher.Constraint("Coincident", 23, 2, 18, 1))
sketch8.addConstraint(Sketcher.Constraint("Coincident", 24, 2, 25, 1))
sketch8.addConstraint(Sketcher.Constraint("Coincident", 25, 2, 26, 1))
sketch8.addConstraint(Sketcher.Constraint("Coincident", 26, 2, 27, 1))
sketch8.addConstraint(Sketcher.Constraint("Coincident", 27, 2, 28, 1))
sketch8.addConstraint(Sketcher.Constraint("Coincident", 28, 2, 29, 1))
sketch8.addConstraint(Sketcher.Constraint("Coincident", 29, 2, 24, 1))
sketch8.addConstraint(Sketcher.Constraint("Coincident", 30, 2, 31, 1))
sketch8.addConstraint(Sketcher.Constraint("Coincident", 31, 2, 32, 1))
sketch8.addConstraint(Sketcher.Constraint("Coincident", 32, 2, 33, 1))
sketch8.addConstraint(Sketcher.Constraint("Coincident", 33, 2, 34, 1))
sketch8.addConstraint(Sketcher.Constraint("Coincident", 34, 2, 35, 1))
sketch8.addConstraint(Sketcher.Constraint("Coincident", 35, 2, 30, 1))
sketch8.addConstraint(Sketcher.Constraint("Vertical", 1))
sketch8.addConstraint(Sketcher.Constraint("Vertical", 4))
sketch8.addConstraint(Sketcher.Constraint("Vertical", 7))
sketch8.addConstraint(Sketcher.Constraint("Vertical", 10))
sketch8.addConstraint(Sketcher.Constraint("Vertical", 13))
sketch8.addConstraint(Sketcher.Constraint("Vertical", 16))
sketch8.addConstraint(Sketcher.Constraint("Vertical", 19))
sketch8.addConstraint(Sketcher.Constraint("Vertical", 22))
sketch8.addConstraint(Sketcher.Constraint("Vertical", 25))
sketch8.addConstraint(Sketcher.Constraint("Vertical", 28))
sketch8.addConstraint(Sketcher.Constraint("Vertical", 31))
sketch8.addConstraint(Sketcher.Constraint("Vertical", 34))
sketch8.addConstraint(Sketcher.Constraint("Symmetric", 10, 2, 18, 2, -2))
sketch8.addConstraint(Sketcher.Constraint("Symmetric", 8, 2, 20, 2, -2))
sketch8.addConstraint(Sketcher.Constraint("Symmetric", 7, 2, 21, 2, -2))
sketch8.addConstraint(Sketcher.Constraint("Symmetric", 11, 2, 23, 2, -2))
sketch8.addConstraint(Sketcher.Constraint("Symmetric", 4, 2, 24, 2, -2))
sketch8.addConstraint(Sketcher.Constraint("Symmetric", 2, 2, 26, 2, -2))
sketch8.addConstraint(Sketcher.Constraint("Symmetric", 1, 2, 27, 2, -2))
sketch8.addConstraint(Sketcher.Constraint("Symmetric", 5, 2, 29, 2, -2))
sketch8.addConstraint(Sketcher.Constraint("Symmetric", 16, 2, 30, 2, -2))
sketch8.addConstraint(Sketcher.Constraint("Symmetric", 14, 2, 32, 2, -2))
sketch8.addConstraint(Sketcher.Constraint("Symmetric", 13, 2, 33, 2, -2))
sketch8.addConstraint(Sketcher.Constraint("Symmetric", 17, 2, 35, 2, -2))
sketch8.addConstraint(Sketcher.Constraint("Parallel", 0, 3))
sketch8.addConstraint(Sketcher.Constraint("Parallel", 2, 5))
sketch8.addConstraint(Sketcher.Constraint("Parallel", 3, 6))
sketch8.addConstraint(Sketcher.Constraint("Parallel", 5, 8))
sketch8.addConstraint(Sketcher.Constraint("Parallel", 6, 9))
sketch8.addConstraint(Sketcher.Constraint("Parallel", 8, 11))
sketch8.addConstraint(Sketcher.Constraint("Parallel", 9, 12))
sketch8.addConstraint(Sketcher.Constraint("Parallel", 11, 14))
sketch8.addConstraint(Sketcher.Constraint("Parallel", 12, 15))
sketch8.addConstraint(Sketcher.Constraint("Parallel", 14, 17))
sketch8.addConstraint(Sketcher.Constraint("Parallel", 15, 18))
sketch8.addConstraint(Sketcher.Constraint("Parallel", 17, 20))
sketch8.addConstraint(Sketcher.Constraint("Parallel", 20, 23))
sketch8.addConstraint(Sketcher.Constraint("Parallel", 23, 26))
sketch8.addConstraint(Sketcher.Constraint("Parallel", 26, 29))
sketch8.addConstraint(Sketcher.Constraint("Parallel", 29, 32))
sketch8.addConstraint(Sketcher.Constraint("Parallel", 32, 35))
sketch8.addConstraint(Sketcher.Constraint("Horizontal", 1, 2, 3, 2))
sketch8.addConstraint(Sketcher.Constraint("Horizontal", 0, 2, 4, 2))
sketch8.addConstraint(Sketcher.Constraint("Horizontal", 4, 2, 6, 2))
sketch8.addConstraint(Sketcher.Constraint("Horizontal", 3, 2, 7, 2))
sketch8.addConstraint(Sketcher.Constraint("Horizontal", 2, 2, 8, 2))
sketch8.addConstraint(Sketcher.Constraint("Horizontal", 7, 2, 9, 2))
sketch8.addConstraint(Sketcher.Constraint("Horizontal", 6, 2, 10, 2))
sketch8.addConstraint(Sketcher.Constraint("Horizontal", 13, 2, 15, 2))
sketch8.addConstraint(Sketcher.Constraint("Horizontal", 12, 2, 16, 2))
sketch8.addConstraint(Sketcher.Constraint("Equal", 10, 13))
sketch8.addConstraint(Sketcher.Constraint("Equal", 11, 12))
sketch8.addConstraint(Sketcher.Constraint("Angle", 0, Q("-30 deg")))
sketch8.addConstraint(Sketcher.Constraint("DistanceX", -1, 1, 2, 2, Q("51 mm")))
sketch8.addConstraint(Sketcher.Constraint("DistanceX", -1, 1, 8, 2, Q("39 mm")))
sketch8.addConstraint(Sketcher.Constraint("DistanceX", -1, 1, 14, 2, Q("45 mm")))
sketch8.addConstraint(Sketcher.Constraint("DistanceY", 12, 2, 4, 2, Q("10 mm")))
sketch8.addConstraint(Sketcher.Constraint("DistanceY", 1, 2, 1, 1, Q("3.22 mm")))
sketch8.addConstraint(Sketcher.Constraint("Distance", 0, Q("3.22 mm")))
sketch8.addConstraint(Sketcher.Constraint("DistanceY", -1, 1, 0, 2, Q("45.11 mm")))
pocket5 = doc.addObject("PartDesign::Pocket", "Pocket004")
body.addObject(pocket5)
pocket5.Profile = sketch8
pocket5.Length = 1.3
pocket5.Reversed = True
doc.recompute()

fillet = doc.addObject("PartDesign::Fillet", "Fillet")
body.addObject(fillet)
fillet.Base = (pocket5, edges_at(pocket5, [
    (24.238, 20, 2.25),
    (14.238, 20, 2.25),
    (24.238, 27.381, 2.25),
    (14.238, 27.381, 2.25),
    (-26.562, 27.381, 2.25),
    (-36.562, 20, 2.25),
    (-36.562, 27.381, 2.25),
    (-26.562, 20, 2.25),
    (-35, 4, 4.5),
    (-45, 8, 4.5),
    (-55, 4, 49.5),
    (-35, 4, 49.5),
    (45, 8, 4.5),
    (35, 4, 4.5),
    (55, 4, 49.5),
    (35, 4, 49.5),
    (-55, 20, 2.25),
    (55, 20, 2.25),
]))
fillet.Radius = 2

doc.recompute()
